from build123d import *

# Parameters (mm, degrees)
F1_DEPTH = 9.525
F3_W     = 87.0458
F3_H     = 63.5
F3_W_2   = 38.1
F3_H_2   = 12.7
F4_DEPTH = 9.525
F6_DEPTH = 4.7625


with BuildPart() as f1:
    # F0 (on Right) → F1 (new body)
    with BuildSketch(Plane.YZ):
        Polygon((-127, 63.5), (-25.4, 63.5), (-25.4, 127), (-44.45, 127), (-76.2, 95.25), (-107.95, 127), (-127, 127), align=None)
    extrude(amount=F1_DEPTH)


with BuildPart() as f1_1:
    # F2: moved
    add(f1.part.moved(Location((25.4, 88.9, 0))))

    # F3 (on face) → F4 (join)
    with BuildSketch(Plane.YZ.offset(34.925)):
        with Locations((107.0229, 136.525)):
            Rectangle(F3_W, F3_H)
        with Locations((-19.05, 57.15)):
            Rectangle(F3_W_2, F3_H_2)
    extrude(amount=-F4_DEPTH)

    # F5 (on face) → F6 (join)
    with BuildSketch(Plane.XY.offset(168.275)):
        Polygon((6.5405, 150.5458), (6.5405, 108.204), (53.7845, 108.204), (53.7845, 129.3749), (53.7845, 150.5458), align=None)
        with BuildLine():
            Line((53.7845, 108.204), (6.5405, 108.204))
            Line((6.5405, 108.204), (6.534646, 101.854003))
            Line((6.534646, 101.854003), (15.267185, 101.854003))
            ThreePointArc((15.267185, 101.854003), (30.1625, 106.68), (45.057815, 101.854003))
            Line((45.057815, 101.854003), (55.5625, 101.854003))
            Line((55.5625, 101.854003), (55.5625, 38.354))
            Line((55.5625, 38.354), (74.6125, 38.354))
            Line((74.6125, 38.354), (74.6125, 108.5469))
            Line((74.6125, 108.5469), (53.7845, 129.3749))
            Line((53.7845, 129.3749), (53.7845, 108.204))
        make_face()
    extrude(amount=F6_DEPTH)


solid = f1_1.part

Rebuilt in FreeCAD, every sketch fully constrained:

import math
import FreeCAD as App
import Part
import Sketcher

V = App.Vector
Q = App.Units.Quantity


def add_polygon(sketch, points):
    """Adds a closed chain of lines whose ends are joined by coincident constraints."""
    first, n = sketch.GeometryCount, len(points)
    for a, b in zip(points, points[1:] + points[:1]):
        sketch.addGeometry(Part.LineSegment(App.Vector(*a, 0), App.Vector(*b, 0)), False)
    for i in range(n):
        sketch.addConstraint(Sketcher.Constraint("Coincident", first + i, 2, first + (i + 1) % n, 1))

doc = App.newDocument("Part")
params = doc.addObject("Spreadsheet::Sheet", "Params")
for row, (alias, value) in enumerate([
    ("sketch1_width", "4 in"),
    ("sketch1_height", "2.5 in"),
    ("sketch1_width2", "0.75 in"),
    ("pad1_length", "0.375 in"),
    ("sketch2_width", "1.5 in"),
    ("sketch2_height", "2.5 in"),
    ("sketch2_height2", "0.5 in"),
    ("sketch2_width2", "3.427 in"),
    ("pad2_length", "0.375 in"),
    ("sketch3_radius", "1 in"),
    ("sketch3_height", "2.5000001 in"),
    ("sketch3_width", "0.75 in"),
    ("sketch3_width2", "1.86 in"),
    ("sketch3_length", "0.25 in"),
    ("pad3_length", "0.1875 in"),
], start=1):
    params.set(f"A{row}", alias)
    params.set(f"B{row}", "=" + value)
    params.setAlias(f"B{row}", alias)

body = doc.addObject("PartDesign::Body", "Body")

# Sketch on YZ plane
sketch1 = body.newObject("Sketcher::SketchObject", "Sketch")
sketch1.AttachmentSupport = (doc.getObject("YZ_Plane"), [""])
sketch1.MapMode = "FlatFace"
add_polygon(sketch1, [(-127, 63.5), (-25.4, 63.5), (-25.4, 127), (-44.45, 127), (-76.2, 95.25), (-107.95, 127), (-127, 127)])  # lines 0-6
sketch1.addConstraint([
    Sketcher.Constraint("Horizontal", 0),
    Sketcher.Constraint("Vertical", 1),
    Sketcher.Constraint("Horizontal", 2),
    Sketcher.Constraint("Horizontal", 5),
    Sketcher.Constraint("Vertical", 6),
    Sketcher.Constraint("Perpendicular", 3, 4),
    Sketcher.Constraint("Horizontal", 2, 2, 4, 2),
    Sketcher.Constraint("Equal", 2, 5),
    Sketcher.Constraint("Equal", 3, 4),
    Sketcher.Constraint("DistanceX", 0, 1, 0, 2, Q("4 in")),
    Sketcher.Constraint("DistanceY", 1, 1, 1, 2, Q("2.5 in")),
    Sketcher.Constraint("DistanceX", 0, 2, -1, 1, Q("1 in")),
    Sketcher.Constraint("DistanceY", -1, 1, 1, 2, Q("5 in")),
    Sketcher.Constraint("DistanceX", 2, 2, 2, 1, Q("0.75 in")),
])
sketch1.setExpression("Constraints[16]", "Params.sketch1_width")
sketch1.setExpression("Constraints[17]", "Params.sketch1_height")
sketch1.setExpression("Constraints[20]", "Params.sketch1_width2")
pad1 = body.newObject("PartDesign::Pad", "Pad")
pad1.Profile = sketch1
pad1.setExpression("Length", "Params.pad1_length")
body2 = doc.addObject("PartDesign::Body", "Body001")
doc.recompute()

body.Placement = App.Placement(V(25.4, 88.9, 0), App.Rotation(V(0, 0, 1), 0))
boolean = body2.newObject("PartDesign::Boolean", "Boolean")
boolean.Type = "Fuse"
boolean.addObjects([body])

# Sketch on YZ plane
sketch2 = body2.newObject("Sketcher::SketchObject", "Sketch001")
sketch2.AttachmentSupport = (doc.getObject("YZ_Plane001"), [""])
sketch2.MapMode = "FlatFace"
sketch2.AttachmentOffset = App.Placement(V(0, 0, 1.375 * 25.4), App.Rotation())
add_polygon(sketch2, [(63.5, 168.275), (63.5, 104.775), (150.5458, 104.775), (150.5458, 168.275)])  # lines 0-3
add_polygon(sketch2, [(-38.1, 63.5), (-38.1, 50.8), (0, 50.8), (0, 63.5)])  # lines 4-7
sketch2.addConstraint([
    Sketcher.Constraint("Vertical", 0),
    Sketcher.Constraint("Horizontal", 1),
    Sketcher.Constraint("Vertical", 2),
    Sketcher.Constraint("Horizontal", 3),
    Sketcher.Constraint("Vertical", 4),
    Sketcher.Constraint("Horizontal", 5),
    Sketcher.Constraint("Vertical", 6),
    Sketcher.Constraint("Horizontal", 7),
    Sketcher.Constraint("PointOnObject", 5, 2, -2),
    Sketcher.Constraint("DistanceX", 5, 1, 5, 2, Q("1.5 in")),
    Sketcher.Constraint("DistanceY", 0, 2, 0, 1, Q("2.5 in")),
    Sketcher.Constraint("DistanceY", 4, 2, 4, 1, Q("0.5 in")),
    Sketcher.Constraint("DistanceY", -1, 1, 4, 2, Q("2 in")),
    Sketcher.Constraint("DistanceX", 4, 2, 0, 2, Q("4 in")),
    Sketcher.Constraint("DistanceX", 1, 1, 1, 2, Q("3.427 in")),
    Sketcher.Constraint("DistanceY", -1, 1, 0, 2, Q("4.125 in")),
])
sketch2.setExpression("Constraints[17]", "Params.sketch2_width")
sketch2.setExpression("Constraints[18]", "Params.sketch2_height")
sketch2.setExpression("Constraints[19]", "Params.sketch2_height2")
sketch2.setExpression("Constraints[22]", "Params.sketch2_width2")
pad2 = body2.newObject("PartDesign::Pad", "Pad001")
pad2.Profile = sketch2
pad2.setExpression("Length", "Params.pad2_length")
pad2.Reversed = True

# Sketch on XY plane
sketch3 = body2.newObject("Sketcher::SketchObject", "Sketch002")
sketch3.AttachmentSupport = (doc.getObject("XY_Plane001"), [""])
sketch3.MapMode = "FlatFace"
sketch3.AttachmentOffset = App.Placement(V(0, 0, 6.625 * 25.4), App.Rotation())
sketch3.addGeometry([
    Part.LineSegment(V(6.5405, 150.5458, 0), V(6.5405, 108.204, 0)),  # 0
    Part.LineSegment(V(6.5405, 108.204, 0), V(6.534646, 101.854003, 0)),  # 1
    Part.LineSegment(V(6.534646, 101.854003, 0), V(15.267185, 101.854003, 0)),  # 2
    Part.ArcOfCircle(Part.Circle(V(30.1625, 81.279999, 0), V(0, 0, 1), 25.400001), math.radians(54.095944), math.radians(125.904056)),  # 3
    Part.LineSegment(V(45.057815, 101.854003, 0), V(55.5625, 101.854003, 0)),  # 4
    Part.LineSegment(V(55.5625, 101.854003, 0), V(55.5625, 38.354, 0)),  # 5
    Part.LineSegment(V(55.5625, 38.354, 0), V(74.6125, 38.354, 0)),  # 6
    Part.LineSegment(V(74.6125, 38.354, 0), V(74.6125, 108.5469, 0)),  # 7
    Part.LineSegment(V(74.6125, 108.5469, 0), V(53.7845, 129.3749, 0)),  # 8
    Part.LineSegment(V(53.7845, 129.3749, 0), V(53.7845, 150.5458, 0)),  # 9
    Part.LineSegment(V(53.7845, 150.5458, 0), V(6.5405, 150.5458, 0)),  # 10
], False)
sketch3.addConstraint([
    Sketcher.Constraint("Coincident", 0, 2, 1, 1),
    Sketcher.Constraint("Coincident", 1, 2, 2, 1),
    Sketcher.Constraint("Coincident", 2, 2, 3, 2),
    Sketcher.Constraint("Coincident", 3, 1, 4, 1),
    Sketcher.Constraint("Coincident", 4, 2, 5, 1),
    Sketcher.Constraint("Coincident", 5, 2, 6, 1),
    Sketcher.Constraint("Coincident", 6, 2, 7, 1),
    Sketcher.Constraint("Coincident", 7, 2, 8, 1),
    Sketcher.Constraint("Coincident", 8, 2, 9, 1),
    Sketcher.Constraint("Coincident", 9, 2, 10, 1),
    Sketcher.Constraint("Coincident", 10, 2, 0, 1),
    Sketcher.Constraint("Vertical", 0),
    Sketcher.Constraint("Horizontal", 2),
    Sketcher.Constraint("Horizontal", 4),
    Sketcher.Constraint("Vertical", 5),
    Sketcher.Constraint("Horizontal", 6),
    Sketcher.Constraint("Vertical", 7),
    Sketcher.Constraint("Vertical", 9),
    Sketcher.Constraint("Horizontal", 10),
    Sketcher.Constraint("Horizontal", 2, 2, 3, 1),
    Sketcher.Constraint("Radius", 3, Q("1 in")),
    Sketcher.Constraint("DistanceY", 5, 2, 5, 1, Q("2.5000001 in")),
    Sketcher.Constraint("Angle", 8, Q("135 deg")),
    Sketcher.Constraint("DistanceX", 3, 3, 4, 2, Q("1 in")),
    Sketcher.Constraint("DistanceX", 6, 1, 6, 2, Q("0.75 in")),
    Sketcher.Constraint("DistanceX", 10, 2, 10, 1, Q("1.86 in")),
    Sketcher.Constraint("DistanceY", -1, 1, 3, 3, Q("3.2 in")),
    Sketcher.Constraint("Distance", 1, Q("0.25 in")),
    Sketcher.Constraint("DistanceY", 0, 2, 0, 1, Q("1.667 in")),
    Sketcher.Constraint("DistanceY", -1, 1, 0, 2, Q("4.26 in")),
    Sketcher.Constraint("DistanceX", 0, 2, 3, 3, Q("0.93 in")),
    Sketcher.Constraint("DistanceY", 7, 1, 7, 2, Q("2.7635 in")),
    Sketcher.Constraint("DistanceX", -1, 1, 3, 3, Q("1.1875 in")),
    Sketcher.Constraint("DistanceX", 2, 1, 2, 2, 8.732539),
])
sketch3.setExpression("Constraints[20]", "Params.sketch3_radius")
sketch3.setExpression("Constraints[21]", "Params.sketch3_height")
sketch3.setExpression("Constraints[24]", "Params.sketch3_width")
sketch3.setExpression("Constraints[25]", "Params.sketch3_width2")
sketch3.setExpression("Constraints[27]", "Params.sketch3_length")
pad3 = body2.newObject("PartDesign::Pad", "Pad002")
pad3.Profile = sketch3
pad3.setExpression("Length", "Params.pad3_length")

doc.recompute()
